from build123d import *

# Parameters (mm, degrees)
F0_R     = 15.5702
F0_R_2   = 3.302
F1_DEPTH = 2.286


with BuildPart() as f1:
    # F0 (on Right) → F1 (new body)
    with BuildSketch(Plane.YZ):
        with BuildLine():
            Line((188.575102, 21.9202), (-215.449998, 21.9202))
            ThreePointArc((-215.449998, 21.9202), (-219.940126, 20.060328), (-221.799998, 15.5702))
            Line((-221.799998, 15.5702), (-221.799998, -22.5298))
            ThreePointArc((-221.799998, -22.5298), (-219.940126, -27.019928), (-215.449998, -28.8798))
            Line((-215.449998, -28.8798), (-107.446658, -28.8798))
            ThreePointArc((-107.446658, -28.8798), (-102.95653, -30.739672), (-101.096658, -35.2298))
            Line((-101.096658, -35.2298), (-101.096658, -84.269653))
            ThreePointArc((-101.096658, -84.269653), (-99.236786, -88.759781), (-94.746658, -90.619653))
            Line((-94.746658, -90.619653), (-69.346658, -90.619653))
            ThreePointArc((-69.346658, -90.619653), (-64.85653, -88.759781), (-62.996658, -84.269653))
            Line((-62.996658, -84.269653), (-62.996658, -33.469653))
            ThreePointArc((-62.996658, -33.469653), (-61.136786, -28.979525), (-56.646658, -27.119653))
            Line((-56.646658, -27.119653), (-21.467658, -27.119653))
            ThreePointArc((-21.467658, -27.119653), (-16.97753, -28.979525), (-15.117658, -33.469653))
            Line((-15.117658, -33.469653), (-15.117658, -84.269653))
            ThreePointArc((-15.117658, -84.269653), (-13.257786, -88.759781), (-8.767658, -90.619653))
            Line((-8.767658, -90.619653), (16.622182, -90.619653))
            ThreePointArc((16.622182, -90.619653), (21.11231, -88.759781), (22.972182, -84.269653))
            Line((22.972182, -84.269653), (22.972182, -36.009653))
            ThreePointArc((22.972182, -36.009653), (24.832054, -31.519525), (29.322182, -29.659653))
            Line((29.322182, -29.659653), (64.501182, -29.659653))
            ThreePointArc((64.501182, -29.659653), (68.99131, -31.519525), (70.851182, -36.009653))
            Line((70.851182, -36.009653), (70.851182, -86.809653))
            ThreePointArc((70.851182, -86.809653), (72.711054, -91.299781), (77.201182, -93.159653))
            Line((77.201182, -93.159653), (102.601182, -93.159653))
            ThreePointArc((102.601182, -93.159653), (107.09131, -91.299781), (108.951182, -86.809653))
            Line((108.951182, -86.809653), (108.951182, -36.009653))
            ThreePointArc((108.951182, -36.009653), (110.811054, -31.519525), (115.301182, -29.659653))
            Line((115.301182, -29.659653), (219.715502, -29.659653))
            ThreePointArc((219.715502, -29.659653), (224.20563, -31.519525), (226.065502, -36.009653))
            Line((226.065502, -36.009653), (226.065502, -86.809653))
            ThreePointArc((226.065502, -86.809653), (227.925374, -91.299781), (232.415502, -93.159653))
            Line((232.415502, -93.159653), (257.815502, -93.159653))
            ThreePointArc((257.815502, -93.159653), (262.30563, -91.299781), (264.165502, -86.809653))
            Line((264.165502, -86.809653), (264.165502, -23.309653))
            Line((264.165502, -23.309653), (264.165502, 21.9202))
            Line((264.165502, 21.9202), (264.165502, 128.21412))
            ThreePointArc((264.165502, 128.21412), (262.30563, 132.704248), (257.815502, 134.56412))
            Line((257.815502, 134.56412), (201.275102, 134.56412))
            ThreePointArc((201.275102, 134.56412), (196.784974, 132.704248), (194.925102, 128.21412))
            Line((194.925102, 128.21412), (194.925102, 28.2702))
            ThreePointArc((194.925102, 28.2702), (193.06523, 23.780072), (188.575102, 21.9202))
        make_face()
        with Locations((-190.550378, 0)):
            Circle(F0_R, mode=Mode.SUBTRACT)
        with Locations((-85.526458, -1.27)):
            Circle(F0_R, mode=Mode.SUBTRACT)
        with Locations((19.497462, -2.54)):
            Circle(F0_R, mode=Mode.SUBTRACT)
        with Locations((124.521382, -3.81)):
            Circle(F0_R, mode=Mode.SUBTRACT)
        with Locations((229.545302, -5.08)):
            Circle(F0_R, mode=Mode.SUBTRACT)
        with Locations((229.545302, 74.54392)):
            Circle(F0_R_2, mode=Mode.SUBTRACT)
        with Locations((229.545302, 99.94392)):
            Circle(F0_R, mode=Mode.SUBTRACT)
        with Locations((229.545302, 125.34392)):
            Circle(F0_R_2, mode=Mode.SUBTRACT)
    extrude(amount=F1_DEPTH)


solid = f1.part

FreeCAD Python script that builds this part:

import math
import FreeCAD as App
import Part
import Sketcher
from FreeCAD import Vector
Q = App.Units.Quantity

doc = App.newDocument("Part")
body = doc.addObject("PartDesign::Body", "Body")

# Sketch on YZ plane
sketch1 = doc.addObject("Sketcher::SketchObject", "Sketch")
body.addObject(sketch1)
sketch1.AttachmentSupport = (doc.YZ_Plane, [""])
sketch1.MapMode = "FlatFace"
sketch1.addGeometry([
    Part.LineSegment(Vector(188.575102, 21.9202, 0), Vector(-215.449998, 21.9202, 0)),  # 0
    Part.ArcOfCircle(Part.Circle(Vector(-215.449998, 15.5702, 0), Vector(0, 0, 1), 6.35), math.radians(90.000002), math.radians(179.999998)),  # 1
    Part.LineSegment(Vector(-221.799998, 15.5702, 0), Vector(-221.799998, -22.5298, 0)),  # 2
    Part.ArcOfCircle(Part.Circle(Vector(-215.449998, -22.5298, 0), Vector(0, 0, 1), 6.35), math.radians(-179.999998), math.radians(-90.000002)),  # 3
    Part.LineSegment(Vector(-215.449998, -28.8798, 0), Vector(-107.446658, -28.8798, 0)),  # 4
    Part.ArcOfCircle(Part.Circle(Vector(-107.446658, -35.2298, 0), Vector(0, 0, 1), 6.35), math.radians(0.000002), math.radians(89.999998)),  # 5
    Part.LineSegment(Vector(-101.096658, -35.2298, 0), Vector(-101.096658, -84.269653, 0)),  # 6
    Part.ArcOfCircle(Part.Circle(Vector(-94.746658, -84.269653, 0), Vector(0, 0, 1), 6.35), math.radians(-179.999998), math.radians(-90.000002)),  # 7
    Part.LineSegment(Vector(-94.746658, -90.619653, 0), Vector(-69.346658, -90.619653, 0)),  # 8
    Part.ArcOfCircle(Part.Circle(Vector(-69.346658, -84.269653, 0), Vector(0, 0, 1), 6.35), math.radians(-89.999998), math.radians(-0.000002)),  # 9
    Part.LineSegment(Vector(-62.996658, -84.269653, 0), Vector(-62.996658, -33.469653, 0)),  # 10
    Part.ArcOfCircle(Part.Circle(Vector(-56.646658, -33.469653, 0), Vector(0, 0, 1), 6.35), math.radians(90.000002), math.radians(179.999998)),  # 11
    Part.LineSegment(Vector(-56.646658, -27.119653, 0), Vector(-21.467658, -27.119653, 0)),  # 12
    Part.ArcOfCircle(Part.Circle(Vector(-21.467658, -33.469653, 0), Vector(0, 0, 1), 6.35), math.radians(0.000002), math.radians(89.999998)),  # 13
    Part.LineSegment(Vector(-15.117658, -33.469653, 0), Vector(-15.117658, -84.269653, 0)),  # 14
    Part.ArcOfCircle(Part.Circle(Vector(-8.767658, -84.269653, 0), Vector(0, 0, 1), 6.35), math.radians(-179.999998), math.radians(-90.000002)),  # 15
    Part.LineSegment(Vector(-8.767658, -90.619653, 0), Vector(16.622182, -90.619653, 0)),  # 16
    Part.ArcOfCircle(Part.Circle(Vector(16.622182, -84.269653, 0), Vector(0, 0, 1), 6.35), math.radians(-89.999998), math.radians(-0.000002)),  # 17
    Part.LineSegment(Vector(22.972182, -84.269653, 0), Vector(22.972182, -36.009653, 0)),  # 18
    Part.ArcOfCircle(Part.Circle(Vector(29.322182, -36.009653, 0), Vector(0, 0, 1), 6.35), math.radians(90.000002), math.radians(179.999998)),  # 19
    Part.LineSegment(Vector(29.322182, -29.659653, 0), Vector(64.501182, -29.659653, 0)),  # 20
    Part.ArcOfCircle(Part.Circle(Vector(64.501182, -36.009653, 0), Vector(0, 0, 1), 6.35), math.radians(0.000002), math.radians(89.999998)),  # 21
    Part.LineSegment(Vector(70.851182, -36.009653, 0), Vector(70.851182, -86.809653, 0)),  # 22
    Part.ArcOfCircle(Part.Circle(Vector(77.201182, -86.809653, 0), Vector(0, 0, 1), 6.35), math.radians(-179.999998), math.radians(-90.000002)),  # 23
    Part.LineSegment(Vector(77.201182, -93.159653, 0), Vector(102.601182, -93.159653, 0)),  # 24
    Part.ArcOfCircle(Part.Circle(Vector(102.601182, -86.809653, 0), Vector(0, 0, 1), 6.35), math.radians(-89.999998), math.radians(-0.000002)),  # 25
    Part.LineSegment(Vector(108.951182, -86.809653, 0), Vector(108.951182, -36.009653, 0)),  # 26
    Part.ArcOfCircle(Part.Circle(Vector(115.301182, -36.009653, 0), Vector(0, 0, 1), 6.35), math.radians(90.000002), math.radians(179.999998)),  # 27
    Part.LineSegment(Vector(115.301182, -29.659653, 0), Vector(219.715502, -29.659653, 0)),  # 28
    Part.ArcOfCircle(Part.Circle(Vector(219.715502, -36.009653, 0), Vector(0, 0, 1), 6.35), math.radians(0.000002), math.radians(89.999998)),  # 29
    Part.LineSegment(Vector(226.065502, -36.009653, 0), Vector(226.065502, -86.809653, 0)),  # 30
    Part.ArcOfCircle(Part.Circle(Vector(232.415502, -86.809653, 0), Vector(0, 0, 1), 6.35), math.radians(-179.999998), math.radians(-90.000002)),  # 31
    Part.LineSegment(Vector(232.415502, -93.159653, 0), Vector(257.815502, -93.159653, 0)),  # 32
    Part.ArcOfCircle(Part.Circle(Vector(257.815502, -86.809653, 0), Vector(0, 0, 1), 6.35), math.radians(-89.999998), math.radians(-0.000002)),  # 33
    Part.LineSegment(Vector(264.165502, -86.809653, 0), Vector(264.165502, 128.21412, 0)),  # 34
    Part.ArcOfCircle(Part.Circle(Vector(257.815502, 128.21412, 0), Vector(0, 0, 1), 6.35), math.radians(0.000002), math.radians(89.999998)),  # 35
    Part.LineSegment(Vector(257.815502, 134.56412, 0), Vector(201.275102, 134.56412, 0)),  # 36
    Part.ArcOfCircle(Part.Circle(Vector(201.275102, 128.21412, 0), Vector(0, 0, 1), 6.35), math.radians(90.000002), math.radians(179.999998)),  # 37
    Part.LineSegment(Vector(194.925102, 128.21412, 0), Vector(194.925102, 28.2702, 0)),  # 38
    Part.ArcOfCircle(Part.Circle(Vector(188.575102, 28.2702, 0), Vector(0, 0, 1), 6.35), math.radians(-89.999998), math.radians(-0.000002)),  # 39
    Part.Circle(Vector(-190.550378, 0, 0), Vector(0, 0, 1), 15.5702),  # 40
    Part.Circle(Vector(-85.526458, -1.27, 0), Vector(0, 0, 1), 15.5702),  # 41
    Part.Circle(Vector(19.497462, -2.54, 0), Vector(0, 0, 1), 15.5702),  # 42
    Part.Circle(Vector(124.521382, -3.81, 0), Vector(0, 0, 1), 15.5702),  # 43
    Part.Circle(Vector(229.545302, -5.08, 0), Vector(0, 0, 1), 15.5702),  # 44
    Part.Circle(Vector(229.545302, 74.54392, 0), Vector(0, 0, 1), 3.302),  # 45
    Part.Circle(Vector(229.545302, 99.94392, 0), Vector(0, 0, 1), 15.5702),  # 46
    Part.Circle(Vector(229.545302, 125.34392, 0), Vector(0, 0, 1), 3.302),  # 47
], False)
sketch1.addConstraint([
    Sketcher.Constraint("Tangent", 0, 2, 1, 1),
    Sketcher.Constraint("Tangent", 1, 2, 2, 1),
    Sketcher.Constraint("Tangent", 2, 2, 3, 1),
    Sketcher.Constraint("Tangent", 3, 2, 4, 1),
    Sketcher.Constraint("Tangent", 4, 2, 5, 2),
    Sketcher.Constraint("Tangent", 5, 1, 6, 1),
    Sketcher.Constraint("Tangent", 6, 2, 7, 1),
    Sketcher.Constraint("Tangent", 7, 2, 8, 1),
    Sketcher.Constraint("Tangent", 8, 2, 9, 1),
    Sketcher.Constraint("Tangent", 9, 2, 10, 1),
    Sketcher.Constraint("Tangent", 10, 2, 11, 2),
    Sketcher.Constraint("Tangent", 11, 1, 12, 1),
    Sketcher.Constraint("Tangent", 12, 2, 13, 2),
    Sketcher.Constraint("Tangent", 13, 1, 14, 1),
    Sketcher.Constraint("Tangent", 14, 2, 15, 1),
    Sketcher.Constraint("Tangent", 15, 2, 16, 1),
    Sketcher.Constraint("Tangent", 16, 2, 17, 1),
    Sketcher.Constraint("Tangent", 17, 2, 18, 1),
    Sketcher.Constraint("Tangent", 18, 2, 19, 2),
    Sketcher.Constraint("Tangent", 19, 1, 20, 1),
    Sketcher.Constraint("Tangent", 20, 2, 21, 2),
    Sketcher.Constraint("Tangent", 21, 1, 22, 1),
    Sketcher.Constraint("Tangent", 22, 2, 23, 1),
    Sketcher.Constraint("Tangent", 23, 2, 24, 1),
    Sketcher.Constraint("Tangent", 24, 2, 25, 1),
    Sketcher.Constraint("Tangent", 25, 2, 26, 1),
    Sketcher.Constraint("Tangent", 26, 2, 27, 2),
    Sketcher.Constraint("Tangent", 27, 1, 28, 1),
    Sketcher.Constraint("Tangent", 28, 2, 29, 2),
    Sketcher.Constraint("Tangent", 29, 1, 30, 1),
    Sketcher.Constraint("Tangent", 30, 2, 31, 1),
    Sketcher.Constraint("Tangent", 31, 2, 32, 1),
    Sketcher.Constraint("Tangent", 32, 2, 33, 1),
    Sketcher.Constraint("Tangent", 33, 2, 34, 1),
    Sketcher.Constraint("Tangent", 34, 2, 35, 1),
    Sketcher.Constraint("Tangent", 35, 2, 36, 1),
    Sketcher.Constraint("Tangent", 36, 2, 37, 1),
    Sketcher.Constraint("Tangent", 37, 2, 38, 1),
    Sketcher.Constraint("Tangent", 38, 2, 39, 2),
    Sketcher.Constraint("Tangent", 39, 1, 0, 1),
    Sketcher.Constraint("Horizontal", 0),
    Sketcher.Constraint("Vertical", 2),
    Sketcher.Constraint("Horizontal", 4),
    Sketcher.Constraint("Vertical", 6),
    Sketcher.Constraint("Horizontal", 8),
    Sketcher.Constraint("Vertical", 10),
    Sketcher.Constraint("Horizontal", 12),
    Sketcher.Constraint("Vertical", 14),
    Sketcher.Constraint("Horizontal", 16),
    Sketcher.Constraint("Vertical", 18),
    Sketcher.Constraint("Horizontal", 20),
    Sketcher.Constraint("Vertical", 22),
    Sketcher.Constraint("Horizontal", 24),
    Sketcher.Constraint("Vertical", 26),
    Sketcher.Constraint("Horizontal", 28),
    Sketcher.Constraint("Vertical", 30),
    Sketcher.Constraint("Horizontal", 32),
    Sketcher.Constraint("Vertical", 34),
    Sketcher.Constraint("Horizontal", 36),
    Sketcher.Constraint("Vertical", 38),
    Sketcher.Constraint("Equal", 1, 3),
    Sketcher.Constraint("Equal", 3, 5),
    Sketcher.Constraint("Equal", 5, 7),
    Sketcher.Constraint("Equal", 7, 9),
    Sketcher.Constraint("Equal", 9, 11),
    Sketcher.Constraint("Equal", 11, 13),
    Sketcher.Constraint("Equal", 13, 15),
    Sketcher.Constraint("Equal", 15, 17),
    Sketcher.Constraint("Equal", 17, 19),
    Sketcher.Constraint("Equal", 19, 21),
    Sketcher.Constraint("Equal", 21, 23),
    Sketcher.Constraint("Equal", 23, 25),
    Sketcher.Constraint("Equal", 25, 27),
    Sketcher.Constraint("Equal", 27, 29),
    Sketcher.Constraint("Equal", 29, 31),
    Sketcher.Constraint("Equal", 31, 33),
    Sketcher.Constraint("Equal", 33, 35),
    Sketcher.Constraint("Equal", 35, 37),
    Sketcher.Constraint("Equal", 37, 39),
    Sketcher.Constraint("Equal", 40, 41),
    Sketcher.Constraint("Equal", 41, 42),
    Sketcher.Constraint("Equal", 42, 43),
    Sketcher.Constraint("Equal", 43, 44),
    Sketcher.Constraint("Equal", 44, 46),
    Sketcher.Constraint("Equal", 45, 47),
    Sketcher.Constraint("PointOnObject", 40, 3, -1),
    Sketcher.Constraint("Horizontal", 9, 3, 15, 3),
    Sketcher.Constraint("Horizontal", 21, 3, 27, 3),
    Sketcher.Constraint("Horizontal", 25, 3, 31, 3),
    Sketcher.Constraint("Vertical", 44, 3, 45, 3),
    Sketcher.Constraint("Vertical", 45, 3, 46, 3),
    Sketcher.Constraint("Vertical", 46, 3, 47, 3),
    Sketcher.Constraint("Equal", 12, 20),
    Sketcher.Constraint("Equal", 8, 24),
    Sketcher.Constraint("Equal", 24, 32),
    Sketcher.Constraint("Equal", 14, 22),
    Sketcher.Constraint("Diameter", 45, Q("0.26 in")),
    Sketcher.Constraint("DistanceX", 8, 1, 8, 2, Q("1 in")),
    Sketcher.Constraint("DistanceY", 10, 1, 10, 2, Q("2 in")),
    Sketcher.Constraint("Radius", 1, Q("0.25 in")),
    Sketcher.Constraint("Diameter", 40, Q("1.226 in")),
    Sketcher.Constraint("DistanceY", 2, 2, 2, 1, Q("1.5 in")),
    Sketcher.Constraint("DistanceY", 18, 1, 18, 2, Q("1.9 in")),
    Sketcher.Constraint("DistanceY", 42, 3, -1, 1, Q("0.1 in")),
    Sketcher.Constraint("DistanceY", 44, 3, -1, 1, Q("0.2 in")),
    Sketcher.Constraint("DistanceX", 12, 1, 12, 2, Q("1.385 in")),
    Sketcher.Constraint("DistanceX", 36, 2, 36, 1, Q("2.226 in")),
    Sketcher.Constraint("DistanceY", 41, 3, -1, 1, Q("0.05 in")),
    Sketcher.Constraint("DistanceY", 43, 3, -1, 1, Q("0.15 in")),
    Sketcher.Constraint("DistanceX", 0, 2, 0, 1, Q("15.9065 in")),
    Sketcher.Constraint("DistanceX", 4, 1, 4, 2, Q("4.2521 in")),
    Sketcher.Constraint("DistanceX", 16, 1, 16, 2, Q("0.9996 in")),
    Sketcher.Constraint("DistanceY", 38, 2, 38, 1, Q("3.9348 in")),
    Sketcher.Constraint("DistanceY", -1, 1, 1, 3, Q("0.613 in")),
    Sketcher.Constraint("DistanceY", -1, 1, 45, 3, Q("2.9348 in")),
    Sketcher.Constraint("DistanceY", -1, 1, 46, 3, Q("3.9348 in")),
    Sketcher.Constraint("DistanceY", -1, 1, 47, 3, Q("4.9348 in")),
    Sketcher.Constraint("DistanceX", -1, 1, 29, 3, 219.715502),
    Sketcher.Constraint("DistanceX", -1, 1, 44, 3, 229.545302),
    Sketcher.Constraint("DistanceY", 6, 2, 6, 1, 49.039853),
    Sketcher.Constraint("DistanceX", 40, 3, -1, 1, 190.550378),
    Sketcher.Constraint("DistanceX", 41, 3, -1, 1, 85.526458),
    Sketcher.Constraint("DistanceX", -1, 1, 42, 3, 19.497462),
    Sketcher.Constraint("DistanceX", -1, 1, 43, 3, 124.521382),
])
pad1 = doc.addObject("PartDesign::Pad", "Pad")
body.addObject(pad1)
pad1.Profile = sketch1
pad1.Length = Q("0.09 in")

doc.recompute()
